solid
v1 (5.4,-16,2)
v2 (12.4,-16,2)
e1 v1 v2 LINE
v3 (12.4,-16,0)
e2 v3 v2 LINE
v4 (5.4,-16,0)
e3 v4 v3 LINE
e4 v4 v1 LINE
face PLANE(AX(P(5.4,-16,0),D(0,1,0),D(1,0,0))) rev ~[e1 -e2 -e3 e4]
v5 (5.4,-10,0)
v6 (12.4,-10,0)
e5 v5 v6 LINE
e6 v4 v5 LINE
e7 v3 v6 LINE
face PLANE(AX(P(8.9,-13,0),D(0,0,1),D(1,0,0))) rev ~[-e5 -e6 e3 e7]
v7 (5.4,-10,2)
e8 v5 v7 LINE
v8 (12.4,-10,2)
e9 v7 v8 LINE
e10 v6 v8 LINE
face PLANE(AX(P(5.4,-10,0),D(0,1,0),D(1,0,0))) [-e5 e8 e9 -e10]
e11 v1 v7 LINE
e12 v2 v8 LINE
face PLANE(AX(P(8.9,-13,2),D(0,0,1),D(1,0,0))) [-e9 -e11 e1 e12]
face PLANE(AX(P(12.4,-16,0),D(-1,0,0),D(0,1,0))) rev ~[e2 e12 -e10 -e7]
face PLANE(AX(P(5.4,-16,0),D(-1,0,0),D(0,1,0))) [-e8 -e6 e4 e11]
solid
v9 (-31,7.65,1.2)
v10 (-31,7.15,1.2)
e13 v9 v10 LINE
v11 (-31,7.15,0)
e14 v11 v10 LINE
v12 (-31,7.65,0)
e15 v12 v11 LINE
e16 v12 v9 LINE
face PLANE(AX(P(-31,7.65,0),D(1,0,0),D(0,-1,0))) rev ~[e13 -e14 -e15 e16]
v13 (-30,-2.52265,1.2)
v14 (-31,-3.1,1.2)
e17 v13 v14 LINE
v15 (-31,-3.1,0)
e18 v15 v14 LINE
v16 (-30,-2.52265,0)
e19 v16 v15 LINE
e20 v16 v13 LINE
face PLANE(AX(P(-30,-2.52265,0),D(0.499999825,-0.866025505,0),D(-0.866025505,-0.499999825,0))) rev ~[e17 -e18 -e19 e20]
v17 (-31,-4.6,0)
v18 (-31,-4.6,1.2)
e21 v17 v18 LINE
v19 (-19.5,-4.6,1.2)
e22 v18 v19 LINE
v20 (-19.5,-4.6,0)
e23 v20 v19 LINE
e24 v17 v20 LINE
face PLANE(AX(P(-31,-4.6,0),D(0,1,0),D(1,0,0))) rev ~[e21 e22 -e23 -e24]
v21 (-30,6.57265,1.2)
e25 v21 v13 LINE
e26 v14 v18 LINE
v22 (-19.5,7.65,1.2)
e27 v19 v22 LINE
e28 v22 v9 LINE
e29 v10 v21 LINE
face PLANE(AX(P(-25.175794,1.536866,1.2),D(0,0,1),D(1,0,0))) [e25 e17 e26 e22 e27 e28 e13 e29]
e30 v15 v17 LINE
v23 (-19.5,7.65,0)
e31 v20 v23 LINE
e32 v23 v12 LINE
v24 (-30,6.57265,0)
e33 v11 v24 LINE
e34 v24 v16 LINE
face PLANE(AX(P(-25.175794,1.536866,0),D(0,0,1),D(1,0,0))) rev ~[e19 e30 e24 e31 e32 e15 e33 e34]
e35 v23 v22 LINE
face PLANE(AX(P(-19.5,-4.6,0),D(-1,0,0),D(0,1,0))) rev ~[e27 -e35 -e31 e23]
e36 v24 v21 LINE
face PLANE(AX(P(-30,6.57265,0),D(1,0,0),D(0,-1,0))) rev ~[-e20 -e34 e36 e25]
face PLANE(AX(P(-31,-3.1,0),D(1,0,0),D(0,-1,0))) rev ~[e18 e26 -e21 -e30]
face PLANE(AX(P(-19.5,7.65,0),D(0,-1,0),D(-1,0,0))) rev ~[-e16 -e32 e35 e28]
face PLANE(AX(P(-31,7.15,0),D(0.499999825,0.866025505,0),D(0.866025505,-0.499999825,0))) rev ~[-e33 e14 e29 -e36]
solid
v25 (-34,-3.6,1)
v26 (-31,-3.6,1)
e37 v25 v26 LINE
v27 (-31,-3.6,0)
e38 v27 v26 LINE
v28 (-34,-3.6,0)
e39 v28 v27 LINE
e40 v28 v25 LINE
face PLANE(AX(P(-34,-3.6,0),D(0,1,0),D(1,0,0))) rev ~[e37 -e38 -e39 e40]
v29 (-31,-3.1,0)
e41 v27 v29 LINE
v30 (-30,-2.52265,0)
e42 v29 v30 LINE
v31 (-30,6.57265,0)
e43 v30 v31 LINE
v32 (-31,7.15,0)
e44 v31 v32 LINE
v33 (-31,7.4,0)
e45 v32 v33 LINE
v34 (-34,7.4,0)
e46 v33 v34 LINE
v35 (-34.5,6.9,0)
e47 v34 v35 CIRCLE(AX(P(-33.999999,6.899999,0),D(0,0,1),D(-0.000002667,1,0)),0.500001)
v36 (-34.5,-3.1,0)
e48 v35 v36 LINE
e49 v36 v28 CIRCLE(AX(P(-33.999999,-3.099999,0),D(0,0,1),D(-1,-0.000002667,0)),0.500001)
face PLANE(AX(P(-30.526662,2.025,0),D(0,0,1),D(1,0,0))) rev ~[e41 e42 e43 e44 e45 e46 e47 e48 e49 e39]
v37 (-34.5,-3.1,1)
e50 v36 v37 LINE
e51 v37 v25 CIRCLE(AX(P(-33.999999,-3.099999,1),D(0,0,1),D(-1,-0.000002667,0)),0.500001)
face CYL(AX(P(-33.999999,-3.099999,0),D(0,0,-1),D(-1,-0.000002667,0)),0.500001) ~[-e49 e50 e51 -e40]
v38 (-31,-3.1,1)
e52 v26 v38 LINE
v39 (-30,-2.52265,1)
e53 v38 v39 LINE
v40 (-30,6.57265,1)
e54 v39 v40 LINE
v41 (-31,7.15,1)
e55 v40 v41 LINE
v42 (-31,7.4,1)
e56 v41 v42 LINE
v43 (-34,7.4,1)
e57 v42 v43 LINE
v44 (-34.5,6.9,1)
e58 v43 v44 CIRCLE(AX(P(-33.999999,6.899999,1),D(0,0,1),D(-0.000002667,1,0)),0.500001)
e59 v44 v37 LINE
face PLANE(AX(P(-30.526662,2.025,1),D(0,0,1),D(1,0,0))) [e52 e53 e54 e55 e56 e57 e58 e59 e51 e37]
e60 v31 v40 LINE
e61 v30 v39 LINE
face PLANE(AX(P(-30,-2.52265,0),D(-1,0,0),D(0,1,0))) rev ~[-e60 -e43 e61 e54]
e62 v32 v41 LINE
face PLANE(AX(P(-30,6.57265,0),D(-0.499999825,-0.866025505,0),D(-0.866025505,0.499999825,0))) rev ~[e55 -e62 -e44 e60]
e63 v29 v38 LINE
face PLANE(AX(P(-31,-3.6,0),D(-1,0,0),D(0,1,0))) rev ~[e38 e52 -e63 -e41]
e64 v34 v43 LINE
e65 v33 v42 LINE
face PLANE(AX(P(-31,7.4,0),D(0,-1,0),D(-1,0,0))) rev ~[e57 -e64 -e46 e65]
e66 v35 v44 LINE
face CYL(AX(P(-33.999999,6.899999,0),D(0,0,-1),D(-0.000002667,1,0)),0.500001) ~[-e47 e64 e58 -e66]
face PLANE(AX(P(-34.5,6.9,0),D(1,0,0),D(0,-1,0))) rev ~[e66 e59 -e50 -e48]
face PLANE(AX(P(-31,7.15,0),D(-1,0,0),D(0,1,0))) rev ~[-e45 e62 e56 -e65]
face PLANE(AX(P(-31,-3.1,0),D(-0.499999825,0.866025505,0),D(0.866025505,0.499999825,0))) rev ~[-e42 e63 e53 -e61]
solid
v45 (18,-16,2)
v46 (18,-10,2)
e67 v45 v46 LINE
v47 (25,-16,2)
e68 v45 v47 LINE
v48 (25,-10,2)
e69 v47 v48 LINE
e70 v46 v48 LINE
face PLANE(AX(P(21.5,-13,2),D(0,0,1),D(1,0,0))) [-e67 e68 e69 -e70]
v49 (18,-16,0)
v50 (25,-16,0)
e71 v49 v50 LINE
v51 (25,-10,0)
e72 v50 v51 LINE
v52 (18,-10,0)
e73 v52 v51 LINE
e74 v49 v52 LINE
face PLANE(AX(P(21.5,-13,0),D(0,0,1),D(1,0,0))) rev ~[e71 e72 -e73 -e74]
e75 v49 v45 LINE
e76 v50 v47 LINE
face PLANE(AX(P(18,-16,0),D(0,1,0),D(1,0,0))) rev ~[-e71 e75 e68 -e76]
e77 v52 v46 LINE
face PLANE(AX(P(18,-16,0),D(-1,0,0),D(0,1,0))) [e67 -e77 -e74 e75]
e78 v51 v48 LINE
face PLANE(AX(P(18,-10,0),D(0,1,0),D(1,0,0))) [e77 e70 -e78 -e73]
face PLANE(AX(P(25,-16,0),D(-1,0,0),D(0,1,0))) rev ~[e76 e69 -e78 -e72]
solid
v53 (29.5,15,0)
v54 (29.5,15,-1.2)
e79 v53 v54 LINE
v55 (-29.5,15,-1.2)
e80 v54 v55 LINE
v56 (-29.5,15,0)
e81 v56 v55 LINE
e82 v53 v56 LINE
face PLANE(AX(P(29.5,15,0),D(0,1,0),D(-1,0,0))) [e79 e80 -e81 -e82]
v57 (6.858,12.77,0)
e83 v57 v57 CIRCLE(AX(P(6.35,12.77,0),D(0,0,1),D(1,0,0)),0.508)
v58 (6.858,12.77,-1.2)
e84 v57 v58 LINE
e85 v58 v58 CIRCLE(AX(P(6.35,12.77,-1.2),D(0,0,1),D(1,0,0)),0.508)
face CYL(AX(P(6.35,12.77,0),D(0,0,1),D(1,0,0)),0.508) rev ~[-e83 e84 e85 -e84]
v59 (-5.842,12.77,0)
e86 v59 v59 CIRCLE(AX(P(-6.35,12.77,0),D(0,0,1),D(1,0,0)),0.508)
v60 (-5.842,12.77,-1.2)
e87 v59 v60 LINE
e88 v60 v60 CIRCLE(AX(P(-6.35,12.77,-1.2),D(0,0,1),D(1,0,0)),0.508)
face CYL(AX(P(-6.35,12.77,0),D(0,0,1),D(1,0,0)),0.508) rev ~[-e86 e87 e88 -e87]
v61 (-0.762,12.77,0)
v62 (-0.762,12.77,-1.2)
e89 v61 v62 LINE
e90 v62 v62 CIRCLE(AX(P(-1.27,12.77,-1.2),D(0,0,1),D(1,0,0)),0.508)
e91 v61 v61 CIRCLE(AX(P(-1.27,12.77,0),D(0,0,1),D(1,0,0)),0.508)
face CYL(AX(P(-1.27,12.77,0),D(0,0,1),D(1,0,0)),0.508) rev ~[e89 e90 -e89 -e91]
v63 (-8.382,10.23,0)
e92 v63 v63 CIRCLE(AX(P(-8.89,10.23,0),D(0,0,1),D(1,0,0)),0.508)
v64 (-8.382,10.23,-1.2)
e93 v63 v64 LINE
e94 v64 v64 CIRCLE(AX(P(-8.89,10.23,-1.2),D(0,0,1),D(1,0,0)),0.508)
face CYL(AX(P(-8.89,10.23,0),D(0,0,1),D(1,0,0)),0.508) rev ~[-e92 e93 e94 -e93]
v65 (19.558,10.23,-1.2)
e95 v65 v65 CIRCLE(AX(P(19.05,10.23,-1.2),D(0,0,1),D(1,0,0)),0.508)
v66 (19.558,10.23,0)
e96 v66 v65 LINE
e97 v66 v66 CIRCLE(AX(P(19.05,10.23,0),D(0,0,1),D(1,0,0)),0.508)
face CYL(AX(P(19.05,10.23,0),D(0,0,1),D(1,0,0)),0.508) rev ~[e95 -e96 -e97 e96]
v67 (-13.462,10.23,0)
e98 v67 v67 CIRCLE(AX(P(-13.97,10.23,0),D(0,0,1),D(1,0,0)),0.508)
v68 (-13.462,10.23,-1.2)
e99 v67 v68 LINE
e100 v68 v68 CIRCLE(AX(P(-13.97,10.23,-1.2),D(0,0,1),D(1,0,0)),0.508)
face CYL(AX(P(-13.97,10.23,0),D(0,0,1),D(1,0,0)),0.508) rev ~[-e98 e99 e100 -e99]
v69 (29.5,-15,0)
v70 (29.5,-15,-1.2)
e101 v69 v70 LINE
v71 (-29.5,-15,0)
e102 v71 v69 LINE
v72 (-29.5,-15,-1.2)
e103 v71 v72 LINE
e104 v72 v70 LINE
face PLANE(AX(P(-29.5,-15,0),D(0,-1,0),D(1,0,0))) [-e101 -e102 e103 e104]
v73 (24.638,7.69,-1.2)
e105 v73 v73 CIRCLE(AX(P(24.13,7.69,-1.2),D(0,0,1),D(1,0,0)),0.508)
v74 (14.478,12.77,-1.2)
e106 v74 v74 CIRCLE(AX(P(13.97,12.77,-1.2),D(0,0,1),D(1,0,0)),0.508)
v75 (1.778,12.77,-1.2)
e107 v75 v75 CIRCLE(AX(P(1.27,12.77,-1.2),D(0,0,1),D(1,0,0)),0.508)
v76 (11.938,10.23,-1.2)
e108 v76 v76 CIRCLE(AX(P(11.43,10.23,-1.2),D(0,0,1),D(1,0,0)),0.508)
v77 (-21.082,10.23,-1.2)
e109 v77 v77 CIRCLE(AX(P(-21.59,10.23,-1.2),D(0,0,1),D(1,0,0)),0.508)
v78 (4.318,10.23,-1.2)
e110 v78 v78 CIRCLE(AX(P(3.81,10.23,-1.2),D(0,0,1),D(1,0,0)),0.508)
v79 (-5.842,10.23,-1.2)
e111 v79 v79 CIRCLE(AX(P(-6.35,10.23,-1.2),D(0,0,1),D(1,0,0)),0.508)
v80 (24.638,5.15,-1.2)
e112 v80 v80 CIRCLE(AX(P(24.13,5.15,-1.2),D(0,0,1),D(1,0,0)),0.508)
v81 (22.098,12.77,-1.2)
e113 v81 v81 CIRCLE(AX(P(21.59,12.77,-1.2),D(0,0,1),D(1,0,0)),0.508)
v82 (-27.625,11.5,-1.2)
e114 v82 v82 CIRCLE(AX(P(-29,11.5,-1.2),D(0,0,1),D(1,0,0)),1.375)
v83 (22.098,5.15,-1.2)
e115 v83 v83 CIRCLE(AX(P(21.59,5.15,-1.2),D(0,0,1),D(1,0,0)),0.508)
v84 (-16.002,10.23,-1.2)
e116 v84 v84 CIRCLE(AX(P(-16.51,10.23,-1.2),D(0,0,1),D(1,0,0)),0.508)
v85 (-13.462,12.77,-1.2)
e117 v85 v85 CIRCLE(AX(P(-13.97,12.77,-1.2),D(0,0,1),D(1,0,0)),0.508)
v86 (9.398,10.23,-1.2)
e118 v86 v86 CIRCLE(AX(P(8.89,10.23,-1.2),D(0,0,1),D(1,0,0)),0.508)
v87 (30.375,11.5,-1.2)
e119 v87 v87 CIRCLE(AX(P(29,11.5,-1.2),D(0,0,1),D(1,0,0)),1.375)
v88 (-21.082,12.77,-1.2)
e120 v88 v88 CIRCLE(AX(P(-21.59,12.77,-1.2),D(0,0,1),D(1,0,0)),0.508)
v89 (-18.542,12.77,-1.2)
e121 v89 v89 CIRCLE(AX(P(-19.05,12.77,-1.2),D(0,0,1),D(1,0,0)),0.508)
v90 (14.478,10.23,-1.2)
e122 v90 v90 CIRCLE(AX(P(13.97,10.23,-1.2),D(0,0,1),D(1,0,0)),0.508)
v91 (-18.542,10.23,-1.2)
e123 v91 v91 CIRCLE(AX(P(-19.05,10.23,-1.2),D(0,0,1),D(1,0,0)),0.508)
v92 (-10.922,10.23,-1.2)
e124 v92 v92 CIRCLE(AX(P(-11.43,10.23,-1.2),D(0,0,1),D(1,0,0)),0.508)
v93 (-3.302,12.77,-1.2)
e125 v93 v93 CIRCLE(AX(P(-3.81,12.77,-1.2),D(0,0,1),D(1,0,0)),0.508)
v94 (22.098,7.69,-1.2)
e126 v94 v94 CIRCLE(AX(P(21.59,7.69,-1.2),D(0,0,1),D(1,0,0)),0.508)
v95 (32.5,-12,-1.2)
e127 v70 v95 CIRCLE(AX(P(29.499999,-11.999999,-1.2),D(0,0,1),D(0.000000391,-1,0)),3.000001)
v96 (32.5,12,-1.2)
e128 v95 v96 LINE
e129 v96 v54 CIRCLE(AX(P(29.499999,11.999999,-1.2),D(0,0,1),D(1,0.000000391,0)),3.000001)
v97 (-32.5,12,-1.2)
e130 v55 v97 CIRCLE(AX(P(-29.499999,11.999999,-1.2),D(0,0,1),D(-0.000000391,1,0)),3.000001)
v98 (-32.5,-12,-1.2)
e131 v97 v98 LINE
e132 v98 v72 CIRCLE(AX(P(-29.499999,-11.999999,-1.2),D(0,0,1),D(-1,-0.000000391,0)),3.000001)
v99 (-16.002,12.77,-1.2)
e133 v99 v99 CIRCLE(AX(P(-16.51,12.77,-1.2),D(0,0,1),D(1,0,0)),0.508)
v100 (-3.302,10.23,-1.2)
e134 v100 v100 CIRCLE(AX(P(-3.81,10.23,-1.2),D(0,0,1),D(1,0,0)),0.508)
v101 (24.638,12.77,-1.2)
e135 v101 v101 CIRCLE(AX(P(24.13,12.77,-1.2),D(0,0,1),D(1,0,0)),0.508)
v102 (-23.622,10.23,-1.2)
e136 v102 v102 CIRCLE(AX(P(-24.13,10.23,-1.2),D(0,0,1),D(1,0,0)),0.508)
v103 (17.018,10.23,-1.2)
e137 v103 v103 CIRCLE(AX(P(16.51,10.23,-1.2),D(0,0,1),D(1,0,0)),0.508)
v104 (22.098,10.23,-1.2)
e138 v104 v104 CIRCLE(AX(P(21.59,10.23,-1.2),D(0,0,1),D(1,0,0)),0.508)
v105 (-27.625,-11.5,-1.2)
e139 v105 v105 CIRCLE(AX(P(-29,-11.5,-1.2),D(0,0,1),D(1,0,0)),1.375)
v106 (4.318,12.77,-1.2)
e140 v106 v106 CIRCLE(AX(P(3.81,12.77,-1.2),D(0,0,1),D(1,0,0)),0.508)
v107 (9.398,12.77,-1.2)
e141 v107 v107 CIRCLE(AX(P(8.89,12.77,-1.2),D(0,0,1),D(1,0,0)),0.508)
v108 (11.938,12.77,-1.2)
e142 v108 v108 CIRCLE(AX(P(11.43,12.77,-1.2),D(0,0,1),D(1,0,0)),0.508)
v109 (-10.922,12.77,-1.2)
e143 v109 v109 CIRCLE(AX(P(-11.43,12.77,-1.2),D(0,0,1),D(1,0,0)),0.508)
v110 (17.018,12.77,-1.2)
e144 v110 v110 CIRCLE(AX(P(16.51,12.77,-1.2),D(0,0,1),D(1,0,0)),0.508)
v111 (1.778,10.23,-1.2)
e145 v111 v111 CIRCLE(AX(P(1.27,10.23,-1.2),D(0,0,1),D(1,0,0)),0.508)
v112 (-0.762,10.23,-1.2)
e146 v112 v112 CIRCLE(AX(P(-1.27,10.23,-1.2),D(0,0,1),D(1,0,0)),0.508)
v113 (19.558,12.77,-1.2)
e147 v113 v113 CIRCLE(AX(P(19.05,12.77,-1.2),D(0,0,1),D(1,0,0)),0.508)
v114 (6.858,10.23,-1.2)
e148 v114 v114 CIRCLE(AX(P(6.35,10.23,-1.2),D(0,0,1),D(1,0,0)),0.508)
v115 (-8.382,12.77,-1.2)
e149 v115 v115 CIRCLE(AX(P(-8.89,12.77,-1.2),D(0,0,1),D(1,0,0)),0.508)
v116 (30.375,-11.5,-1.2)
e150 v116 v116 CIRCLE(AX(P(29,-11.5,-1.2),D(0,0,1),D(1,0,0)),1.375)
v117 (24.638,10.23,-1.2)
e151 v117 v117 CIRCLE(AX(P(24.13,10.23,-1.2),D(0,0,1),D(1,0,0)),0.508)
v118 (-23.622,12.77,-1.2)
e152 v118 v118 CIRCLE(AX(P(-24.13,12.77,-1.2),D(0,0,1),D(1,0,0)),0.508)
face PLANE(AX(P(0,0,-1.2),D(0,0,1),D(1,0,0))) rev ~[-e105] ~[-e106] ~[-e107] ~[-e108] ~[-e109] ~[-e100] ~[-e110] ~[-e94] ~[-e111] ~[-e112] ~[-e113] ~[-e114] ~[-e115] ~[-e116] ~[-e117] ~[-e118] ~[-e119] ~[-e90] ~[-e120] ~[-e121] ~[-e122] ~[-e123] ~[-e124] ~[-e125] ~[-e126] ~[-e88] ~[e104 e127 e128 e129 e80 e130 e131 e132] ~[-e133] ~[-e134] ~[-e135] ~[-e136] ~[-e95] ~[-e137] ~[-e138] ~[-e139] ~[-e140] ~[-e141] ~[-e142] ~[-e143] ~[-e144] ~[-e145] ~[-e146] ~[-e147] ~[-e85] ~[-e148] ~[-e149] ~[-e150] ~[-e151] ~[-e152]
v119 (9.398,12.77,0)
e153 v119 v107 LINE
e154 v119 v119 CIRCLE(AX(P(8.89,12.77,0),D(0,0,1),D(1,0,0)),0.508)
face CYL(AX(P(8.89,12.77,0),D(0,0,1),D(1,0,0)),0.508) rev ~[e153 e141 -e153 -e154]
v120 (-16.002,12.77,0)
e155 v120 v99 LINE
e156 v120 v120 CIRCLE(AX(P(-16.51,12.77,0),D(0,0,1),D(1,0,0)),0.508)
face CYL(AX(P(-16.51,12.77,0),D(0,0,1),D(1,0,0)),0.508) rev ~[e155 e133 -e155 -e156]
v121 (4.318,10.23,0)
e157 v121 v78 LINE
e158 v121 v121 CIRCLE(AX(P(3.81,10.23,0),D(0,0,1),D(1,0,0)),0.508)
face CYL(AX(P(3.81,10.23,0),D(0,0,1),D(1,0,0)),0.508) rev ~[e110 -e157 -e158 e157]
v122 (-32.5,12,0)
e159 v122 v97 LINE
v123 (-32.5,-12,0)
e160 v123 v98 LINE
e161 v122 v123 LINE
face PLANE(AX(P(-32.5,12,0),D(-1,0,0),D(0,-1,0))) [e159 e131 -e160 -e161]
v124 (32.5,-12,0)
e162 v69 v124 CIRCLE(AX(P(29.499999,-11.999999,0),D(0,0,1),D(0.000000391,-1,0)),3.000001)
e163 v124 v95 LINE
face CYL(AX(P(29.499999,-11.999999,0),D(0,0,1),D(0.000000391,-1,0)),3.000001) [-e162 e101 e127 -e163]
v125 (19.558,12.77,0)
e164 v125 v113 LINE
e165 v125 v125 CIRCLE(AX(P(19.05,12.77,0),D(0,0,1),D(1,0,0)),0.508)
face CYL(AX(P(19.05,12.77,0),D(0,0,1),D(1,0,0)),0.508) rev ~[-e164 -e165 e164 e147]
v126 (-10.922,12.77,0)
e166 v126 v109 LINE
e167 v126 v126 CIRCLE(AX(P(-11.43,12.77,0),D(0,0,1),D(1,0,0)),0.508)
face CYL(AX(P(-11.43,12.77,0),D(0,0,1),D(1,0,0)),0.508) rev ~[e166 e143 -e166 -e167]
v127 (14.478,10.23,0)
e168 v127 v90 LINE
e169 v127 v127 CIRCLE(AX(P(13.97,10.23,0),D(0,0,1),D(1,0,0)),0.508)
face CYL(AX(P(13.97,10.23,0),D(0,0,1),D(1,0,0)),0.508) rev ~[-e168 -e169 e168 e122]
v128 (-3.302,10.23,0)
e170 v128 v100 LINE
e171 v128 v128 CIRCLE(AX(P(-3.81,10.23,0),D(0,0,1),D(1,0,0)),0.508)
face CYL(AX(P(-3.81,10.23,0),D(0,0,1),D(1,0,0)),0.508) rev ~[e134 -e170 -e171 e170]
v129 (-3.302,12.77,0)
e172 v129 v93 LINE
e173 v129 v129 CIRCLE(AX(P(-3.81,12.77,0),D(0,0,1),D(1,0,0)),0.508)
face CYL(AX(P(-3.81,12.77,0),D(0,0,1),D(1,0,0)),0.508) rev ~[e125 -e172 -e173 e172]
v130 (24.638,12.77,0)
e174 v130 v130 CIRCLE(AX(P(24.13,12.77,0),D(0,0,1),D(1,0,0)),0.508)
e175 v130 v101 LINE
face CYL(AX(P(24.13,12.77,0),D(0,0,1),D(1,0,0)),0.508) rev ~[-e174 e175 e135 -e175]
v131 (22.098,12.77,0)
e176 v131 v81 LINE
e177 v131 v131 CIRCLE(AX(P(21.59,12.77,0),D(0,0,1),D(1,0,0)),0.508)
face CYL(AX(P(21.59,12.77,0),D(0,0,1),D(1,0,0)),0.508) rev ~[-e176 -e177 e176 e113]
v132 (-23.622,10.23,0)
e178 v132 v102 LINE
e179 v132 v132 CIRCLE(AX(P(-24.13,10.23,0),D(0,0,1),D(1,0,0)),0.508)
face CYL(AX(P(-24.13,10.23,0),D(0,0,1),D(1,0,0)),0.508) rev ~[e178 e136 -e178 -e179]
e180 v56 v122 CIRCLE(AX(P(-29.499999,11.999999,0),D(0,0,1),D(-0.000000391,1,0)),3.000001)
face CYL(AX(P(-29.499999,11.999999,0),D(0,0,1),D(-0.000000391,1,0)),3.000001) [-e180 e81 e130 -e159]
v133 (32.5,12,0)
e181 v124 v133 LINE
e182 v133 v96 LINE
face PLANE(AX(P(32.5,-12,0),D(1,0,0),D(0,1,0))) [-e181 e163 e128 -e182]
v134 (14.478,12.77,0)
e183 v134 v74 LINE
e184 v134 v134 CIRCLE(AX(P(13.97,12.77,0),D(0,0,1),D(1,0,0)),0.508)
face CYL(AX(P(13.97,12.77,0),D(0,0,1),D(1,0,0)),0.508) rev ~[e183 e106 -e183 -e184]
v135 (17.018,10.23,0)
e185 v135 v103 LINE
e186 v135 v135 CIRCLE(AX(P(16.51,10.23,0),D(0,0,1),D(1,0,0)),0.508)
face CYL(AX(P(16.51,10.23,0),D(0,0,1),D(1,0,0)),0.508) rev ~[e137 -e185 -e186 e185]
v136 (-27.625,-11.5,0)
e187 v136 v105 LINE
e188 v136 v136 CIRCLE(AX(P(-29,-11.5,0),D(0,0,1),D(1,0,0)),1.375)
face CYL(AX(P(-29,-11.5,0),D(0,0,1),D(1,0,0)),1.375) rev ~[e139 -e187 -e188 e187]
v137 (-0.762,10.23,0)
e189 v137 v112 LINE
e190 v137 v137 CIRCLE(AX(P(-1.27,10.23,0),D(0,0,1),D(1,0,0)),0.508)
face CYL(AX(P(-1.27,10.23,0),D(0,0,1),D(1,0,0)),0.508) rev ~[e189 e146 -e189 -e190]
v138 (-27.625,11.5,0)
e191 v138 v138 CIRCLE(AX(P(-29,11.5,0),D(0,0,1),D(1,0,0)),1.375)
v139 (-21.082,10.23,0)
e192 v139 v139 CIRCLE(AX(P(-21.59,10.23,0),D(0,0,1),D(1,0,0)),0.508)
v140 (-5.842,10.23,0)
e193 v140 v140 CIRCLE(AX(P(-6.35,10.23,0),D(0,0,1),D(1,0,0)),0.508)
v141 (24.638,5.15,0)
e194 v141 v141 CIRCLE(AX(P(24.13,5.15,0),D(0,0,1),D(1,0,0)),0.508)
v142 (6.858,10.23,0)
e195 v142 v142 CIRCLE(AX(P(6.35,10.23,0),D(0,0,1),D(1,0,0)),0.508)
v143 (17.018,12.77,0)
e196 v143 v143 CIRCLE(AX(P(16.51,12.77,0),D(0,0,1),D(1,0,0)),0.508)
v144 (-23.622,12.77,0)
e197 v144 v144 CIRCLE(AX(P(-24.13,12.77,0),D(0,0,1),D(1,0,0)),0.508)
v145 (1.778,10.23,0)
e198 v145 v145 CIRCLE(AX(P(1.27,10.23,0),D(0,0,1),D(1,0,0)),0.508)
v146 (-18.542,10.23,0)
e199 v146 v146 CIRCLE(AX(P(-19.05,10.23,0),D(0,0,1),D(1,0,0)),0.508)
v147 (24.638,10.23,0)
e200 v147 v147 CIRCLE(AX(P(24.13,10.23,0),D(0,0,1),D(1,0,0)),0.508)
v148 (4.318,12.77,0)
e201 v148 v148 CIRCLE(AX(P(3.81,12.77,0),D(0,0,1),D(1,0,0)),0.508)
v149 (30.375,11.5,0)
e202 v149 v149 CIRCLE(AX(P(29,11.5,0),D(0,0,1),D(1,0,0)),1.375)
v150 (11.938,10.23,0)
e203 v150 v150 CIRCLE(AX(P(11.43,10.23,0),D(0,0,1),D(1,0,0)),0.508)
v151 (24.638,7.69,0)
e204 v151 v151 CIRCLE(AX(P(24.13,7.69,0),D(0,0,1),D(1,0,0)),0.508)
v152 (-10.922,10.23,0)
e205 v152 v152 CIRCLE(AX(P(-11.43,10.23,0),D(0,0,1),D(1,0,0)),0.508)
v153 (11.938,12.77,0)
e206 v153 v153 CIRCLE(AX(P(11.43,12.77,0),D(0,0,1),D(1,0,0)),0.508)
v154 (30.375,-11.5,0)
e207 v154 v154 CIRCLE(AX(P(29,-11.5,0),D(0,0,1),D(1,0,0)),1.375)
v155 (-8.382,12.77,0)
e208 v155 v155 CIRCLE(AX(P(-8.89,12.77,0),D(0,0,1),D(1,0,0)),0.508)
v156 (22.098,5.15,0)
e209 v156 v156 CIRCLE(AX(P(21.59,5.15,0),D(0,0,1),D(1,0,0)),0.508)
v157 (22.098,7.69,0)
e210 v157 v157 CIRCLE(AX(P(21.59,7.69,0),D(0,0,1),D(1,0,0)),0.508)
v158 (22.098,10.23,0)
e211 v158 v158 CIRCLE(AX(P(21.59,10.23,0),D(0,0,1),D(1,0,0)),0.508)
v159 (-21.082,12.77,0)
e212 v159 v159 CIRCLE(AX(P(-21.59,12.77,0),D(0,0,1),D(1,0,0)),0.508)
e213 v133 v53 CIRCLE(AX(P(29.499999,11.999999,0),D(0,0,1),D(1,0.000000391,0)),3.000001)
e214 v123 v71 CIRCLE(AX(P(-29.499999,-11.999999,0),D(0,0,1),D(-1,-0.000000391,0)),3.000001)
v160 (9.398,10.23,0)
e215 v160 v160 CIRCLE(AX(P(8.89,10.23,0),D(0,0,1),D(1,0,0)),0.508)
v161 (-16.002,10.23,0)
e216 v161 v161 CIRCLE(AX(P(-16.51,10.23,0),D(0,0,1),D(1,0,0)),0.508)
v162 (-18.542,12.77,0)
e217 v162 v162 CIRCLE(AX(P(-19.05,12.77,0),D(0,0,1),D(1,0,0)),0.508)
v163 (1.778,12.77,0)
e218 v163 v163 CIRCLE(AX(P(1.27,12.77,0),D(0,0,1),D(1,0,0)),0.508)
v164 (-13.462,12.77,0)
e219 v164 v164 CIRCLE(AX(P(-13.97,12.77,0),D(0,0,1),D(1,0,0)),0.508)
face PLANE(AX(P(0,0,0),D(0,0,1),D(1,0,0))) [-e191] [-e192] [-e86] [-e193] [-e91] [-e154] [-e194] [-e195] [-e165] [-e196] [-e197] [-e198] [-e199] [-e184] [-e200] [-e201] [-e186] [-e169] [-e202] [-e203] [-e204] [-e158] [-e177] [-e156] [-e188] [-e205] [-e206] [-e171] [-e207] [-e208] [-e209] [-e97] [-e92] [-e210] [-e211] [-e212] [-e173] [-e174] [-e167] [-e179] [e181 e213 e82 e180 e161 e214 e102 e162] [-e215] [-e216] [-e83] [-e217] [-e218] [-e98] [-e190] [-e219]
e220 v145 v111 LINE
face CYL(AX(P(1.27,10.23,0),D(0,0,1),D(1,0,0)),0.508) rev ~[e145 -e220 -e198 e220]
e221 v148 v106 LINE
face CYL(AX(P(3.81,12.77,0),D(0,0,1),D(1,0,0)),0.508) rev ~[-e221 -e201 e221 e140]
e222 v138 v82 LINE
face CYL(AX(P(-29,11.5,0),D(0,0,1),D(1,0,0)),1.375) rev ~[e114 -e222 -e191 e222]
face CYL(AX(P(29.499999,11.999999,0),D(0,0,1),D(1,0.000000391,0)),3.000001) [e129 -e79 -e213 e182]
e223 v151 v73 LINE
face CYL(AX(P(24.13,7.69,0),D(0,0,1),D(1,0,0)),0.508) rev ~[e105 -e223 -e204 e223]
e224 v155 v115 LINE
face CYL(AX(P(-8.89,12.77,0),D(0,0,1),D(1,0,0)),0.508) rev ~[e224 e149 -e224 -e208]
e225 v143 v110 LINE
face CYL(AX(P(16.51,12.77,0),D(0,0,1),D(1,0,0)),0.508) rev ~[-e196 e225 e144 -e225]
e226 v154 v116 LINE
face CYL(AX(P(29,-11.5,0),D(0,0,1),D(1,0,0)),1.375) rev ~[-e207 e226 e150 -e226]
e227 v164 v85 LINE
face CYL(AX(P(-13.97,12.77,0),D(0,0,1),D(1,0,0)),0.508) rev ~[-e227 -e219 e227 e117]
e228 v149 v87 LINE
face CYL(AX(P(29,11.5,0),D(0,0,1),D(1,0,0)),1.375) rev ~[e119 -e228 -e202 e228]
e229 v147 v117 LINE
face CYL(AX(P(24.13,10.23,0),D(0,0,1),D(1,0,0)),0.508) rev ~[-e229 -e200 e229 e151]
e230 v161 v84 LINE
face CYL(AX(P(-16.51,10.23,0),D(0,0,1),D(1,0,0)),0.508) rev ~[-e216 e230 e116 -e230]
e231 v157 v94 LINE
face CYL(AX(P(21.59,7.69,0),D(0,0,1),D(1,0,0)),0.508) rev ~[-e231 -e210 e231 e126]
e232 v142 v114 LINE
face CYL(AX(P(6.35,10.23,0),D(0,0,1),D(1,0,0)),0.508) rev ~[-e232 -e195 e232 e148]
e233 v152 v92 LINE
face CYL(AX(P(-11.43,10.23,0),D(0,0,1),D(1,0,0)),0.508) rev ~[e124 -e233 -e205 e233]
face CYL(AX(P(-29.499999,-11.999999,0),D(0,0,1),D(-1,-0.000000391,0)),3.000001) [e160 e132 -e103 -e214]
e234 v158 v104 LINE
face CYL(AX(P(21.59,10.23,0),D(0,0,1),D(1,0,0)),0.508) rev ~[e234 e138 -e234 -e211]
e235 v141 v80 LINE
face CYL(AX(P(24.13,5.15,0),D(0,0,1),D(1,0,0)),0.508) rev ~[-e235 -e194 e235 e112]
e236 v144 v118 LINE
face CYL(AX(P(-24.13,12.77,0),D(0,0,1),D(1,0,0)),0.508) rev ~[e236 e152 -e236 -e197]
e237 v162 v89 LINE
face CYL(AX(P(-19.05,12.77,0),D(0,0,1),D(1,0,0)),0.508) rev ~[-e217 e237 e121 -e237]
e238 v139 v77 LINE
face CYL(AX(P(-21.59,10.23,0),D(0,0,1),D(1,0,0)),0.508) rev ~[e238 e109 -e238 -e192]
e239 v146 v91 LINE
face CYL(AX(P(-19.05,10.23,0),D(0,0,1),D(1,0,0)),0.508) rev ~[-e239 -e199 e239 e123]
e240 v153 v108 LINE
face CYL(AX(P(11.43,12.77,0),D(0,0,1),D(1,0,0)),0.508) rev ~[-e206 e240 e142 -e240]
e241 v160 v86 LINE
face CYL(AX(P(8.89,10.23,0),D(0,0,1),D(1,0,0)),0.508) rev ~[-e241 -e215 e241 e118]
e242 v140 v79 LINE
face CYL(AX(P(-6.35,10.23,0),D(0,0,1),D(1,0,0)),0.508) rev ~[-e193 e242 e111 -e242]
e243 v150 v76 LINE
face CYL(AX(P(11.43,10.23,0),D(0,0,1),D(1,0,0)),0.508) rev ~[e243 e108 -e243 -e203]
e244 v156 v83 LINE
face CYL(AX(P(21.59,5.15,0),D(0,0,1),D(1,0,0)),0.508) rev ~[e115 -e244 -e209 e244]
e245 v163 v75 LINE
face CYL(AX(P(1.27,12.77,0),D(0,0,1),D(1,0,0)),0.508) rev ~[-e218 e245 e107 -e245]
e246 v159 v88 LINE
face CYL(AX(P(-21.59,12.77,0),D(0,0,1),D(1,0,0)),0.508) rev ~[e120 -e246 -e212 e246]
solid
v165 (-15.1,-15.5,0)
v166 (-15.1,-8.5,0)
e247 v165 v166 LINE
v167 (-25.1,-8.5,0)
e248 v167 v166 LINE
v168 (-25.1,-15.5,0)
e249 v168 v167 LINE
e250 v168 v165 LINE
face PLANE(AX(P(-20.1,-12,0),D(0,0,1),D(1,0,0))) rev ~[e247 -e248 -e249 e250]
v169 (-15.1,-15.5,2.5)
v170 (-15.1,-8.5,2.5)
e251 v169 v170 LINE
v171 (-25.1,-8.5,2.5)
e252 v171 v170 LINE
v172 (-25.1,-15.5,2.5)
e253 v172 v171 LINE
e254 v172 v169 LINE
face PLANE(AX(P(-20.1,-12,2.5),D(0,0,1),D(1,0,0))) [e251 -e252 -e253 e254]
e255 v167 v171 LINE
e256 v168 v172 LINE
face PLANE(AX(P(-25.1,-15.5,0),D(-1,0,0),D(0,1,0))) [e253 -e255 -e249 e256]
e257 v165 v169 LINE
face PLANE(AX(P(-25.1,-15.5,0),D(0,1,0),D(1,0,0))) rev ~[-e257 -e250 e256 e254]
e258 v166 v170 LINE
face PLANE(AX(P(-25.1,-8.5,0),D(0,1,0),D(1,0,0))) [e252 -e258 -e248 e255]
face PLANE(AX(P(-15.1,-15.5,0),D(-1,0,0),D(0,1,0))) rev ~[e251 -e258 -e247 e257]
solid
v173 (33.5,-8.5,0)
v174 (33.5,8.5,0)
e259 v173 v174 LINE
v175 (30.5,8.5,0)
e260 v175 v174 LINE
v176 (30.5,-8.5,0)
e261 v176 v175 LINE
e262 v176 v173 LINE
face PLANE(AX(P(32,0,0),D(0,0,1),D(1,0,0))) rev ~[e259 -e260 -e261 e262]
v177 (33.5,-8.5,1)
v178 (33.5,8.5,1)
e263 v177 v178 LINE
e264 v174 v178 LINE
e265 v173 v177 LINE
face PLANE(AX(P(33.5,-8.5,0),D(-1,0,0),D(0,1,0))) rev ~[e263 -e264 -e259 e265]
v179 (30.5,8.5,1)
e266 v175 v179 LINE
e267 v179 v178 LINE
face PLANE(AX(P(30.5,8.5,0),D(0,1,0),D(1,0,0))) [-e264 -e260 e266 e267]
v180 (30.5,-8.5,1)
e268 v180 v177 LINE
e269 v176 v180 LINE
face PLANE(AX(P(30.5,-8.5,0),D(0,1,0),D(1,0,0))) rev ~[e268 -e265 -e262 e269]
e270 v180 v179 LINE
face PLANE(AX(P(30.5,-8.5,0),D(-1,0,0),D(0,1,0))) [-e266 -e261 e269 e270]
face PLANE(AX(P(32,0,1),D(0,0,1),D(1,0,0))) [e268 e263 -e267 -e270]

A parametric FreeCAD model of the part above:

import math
import FreeCAD as App
import Part
import Sketcher
Q = App.Units.Quantity


def add_polygon(sketch, points):
    """Adds a closed chain of lines whose ends are joined by coincident constraints."""
    first, n = sketch.GeometryCount, len(points)
    for a, b in zip(points, points[1:] + points[:1]):
        sketch.addGeometry(Part.LineSegment(App.Vector(*a, 0), App.Vector(*b, 0)), False)
    for i in range(n):
        sketch.addConstraint(Sketcher.Constraint("Coincident", first + i, 2, first + (i + 1) % n, 1))

doc = App.newDocument("Part")
body = doc.addObject("PartDesign::Body", "Body")

sketch1 = body.newObject("Sketcher::SketchObject", "Sketch")
sketch1.AttachmentSupport = (doc.getObject("XY_Plane"), [""])
sketch1.MapMode = "FlatFace"
sketch1.addGeometry([
    Part.ArcOfCircle(Part.Circle(App.Vector(29.499999, 11.999999, 0), App.Vector(0, 0, 1), 3.000001), math.radians(0.000022), math.radians(89.999978)),
    Part.LineSegment(App.Vector(29.5, 15, 0), App.Vector(-29.5, 15, 0)),
    Part.ArcOfCircle(Part.Circle(App.Vector(-29.499999, 11.999999, 0), App.Vector(0, 0, 1), 3.000001), math.radians(90.000022), math.radians(179.999978)),
    Part.LineSegment(App.Vector(-32.5, 12, 0), App.Vector(-32.5, -12, 0)),
    Part.ArcOfCircle(Part.Circle(App.Vector(-29.499999, -11.999999, 0), App.Vector(0, 0, 1), 3.000001), math.radians(-179.999978), math.radians(-90.000022)),
    Part.LineSegment(App.Vector(-29.5, -15, 0), App.Vector(29.5, -15, 0)),
    Part.ArcOfCircle(Part.Circle(App.Vector(29.499999, -11.999999, 0), App.Vector(0, 0, 1), 3.000001), math.radians(-89.999978), math.radians(-0.000022)),
    Part.LineSegment(App.Vector(32.5, -12, 0), App.Vector(32.5, 12, 0)),
    Part.Circle(App.Vector(-29, -11.5, 0), App.Vector(0, 0, 1), 1.375),
    Part.Circle(App.Vector(29, -11.5, 0), App.Vector(0, 0, 1), 1.375),
    Part.Circle(App.Vector(-29, 11.5, 0), App.Vector(0, 0, 1), 1.375),
    Part.Circle(App.Vector(-24.13, 10.23, 0), App.Vector(0, 0, 1), 0.508),
    Part.Circle(App.Vector(-24.13, 12.77, 0), App.Vector(0, 0, 1), 0.508),
    Part.Circle(App.Vector(-21.59, 10.23, 0), App.Vector(0, 0, 1), 0.508),
    Part.Circle(App.Vector(-19.05, 10.23, 0), App.Vector(0, 0, 1), 0.508),
    Part.Circle(App.Vector(-16.51, 10.23, 0), App.Vector(0, 0, 1), 0.508),
    Part.Circle(App.Vector(-21.59, 12.77, 0), App.Vector(0, 0, 1), 0.508),
    Part.Circle(App.Vector(-19.05, 12.77, 0), App.Vector(0, 0, 1), 0.508),
    Part.Circle(App.Vector(-16.51, 12.77, 0), App.Vector(0, 0, 1), 0.508),
    Part.Circle(App.Vector(-13.97, 10.23, 0), App.Vector(0, 0, 1), 0.508),
    Part.Circle(App.Vector(-11.43, 10.23, 0), App.Vector(0, 0, 1), 0.508),
    Part.Circle(App.Vector(-8.89, 10.23, 0), App.Vector(0, 0, 1), 0.508),
    Part.Circle(App.Vector(-13.97, 12.77, 0), App.Vector(0, 0, 1), 0.508),
    Part.Circle(App.Vector(-11.43, 12.77, 0), App.Vector(0, 0, 1), 0.508),
    Part.Circle(App.Vector(-8.89, 12.77, 0), App.Vector(0, 0, 1), 0.508),
    Part.Circle(App.Vector(-6.35, 10.23, 0), App.Vector(0, 0, 1), 0.508),
    Part.Circle(App.Vector(-3.81, 10.23, 0), App.Vector(0, 0, 1), 0.508),
    Part.Circle(App.Vector(-1.27, 10.23, 0), App.Vector(0, 0, 1), 0.508),
    Part.Circle(App.Vector(-6.35, 12.77, 0), App.Vector(0, 0, 1), 0.508),
    Part.Circle(App.Vector(-3.81, 12.77, 0), App.Vector(0, 0, 1), 0.508),
    Part.Circle(App.Vector(-1.27, 12.77, 0), App.Vector(0, 0, 1), 0.508),
    Part.Circle(App.Vector(21.59, 5.15, 0), App.Vector(0, 0, 1), 0.508),
    Part.Circle(App.Vector(24.13, 5.15, 0), App.Vector(0, 0, 1), 0.508),
    Part.Circle(App.Vector(1.27, 10.23, 0), App.Vector(0, 0, 1), 0.508),
    Part.Circle(App.Vector(3.81, 10.23, 0), App.Vector(0, 0, 1), 0.508),
    Part.Circle(App.Vector(6.35, 10.23, 0), App.Vector(0, 0, 1), 0.508),
    Part.Circle(App.Vector(1.27, 12.77, 0), App.Vector(0, 0, 1), 0.508),
    Part.Circle(App.Vector(3.81, 12.77, 0), App.Vector(0, 0, 1), 0.508),
    Part.Circle(App.Vector(6.35, 12.77, 0), App.Vector(0, 0, 1), 0.508),
    Part.Circle(App.Vector(8.89, 10.23, 0), App.Vector(0, 0, 1), 0.508),
    Part.Circle(App.Vector(11.43, 10.23, 0), App.Vector(0, 0, 1), 0.508),
    Part.Circle(App.Vector(13.97, 10.23, 0), App.Vector(0, 0, 1), 0.508),
    Part.Circle(App.Vector(8.89, 12.77, 0), App.Vector(0, 0, 1), 0.508),
    Part.Circle(App.Vector(11.43, 12.77, 0), App.Vector(0, 0, 1), 0.508),
    Part.Circle(App.Vector(13.97, 12.77, 0), App.Vector(0, 0, 1), 0.508),
    Part.Circle(App.Vector(21.59, 7.69, 0), App.Vector(0, 0, 1), 0.508),
    Part.Circle(App.Vector(24.13, 7.69, 0), App.Vector(0, 0, 1), 0.508),
    Part.Circle(App.Vector(16.51, 10.23, 0), App.Vector(0, 0, 1), 0.508),
    Part.Circle(App.Vector(19.05, 10.23, 0), App.Vector(0, 0, 1), 0.508),
    Part.Circle(App.Vector(21.59, 10.23, 0), App.Vector(0, 0, 1), 0.508),
    Part.Circle(App.Vector(16.51, 12.77, 0), App.Vector(0, 0, 1), 0.508),
    Part.Circle(App.Vector(19.05, 12.77, 0), App.Vector(0, 0, 1), 0.508),
    Part.Circle(App.Vector(21.59, 12.77, 0), App.Vector(0, 0, 1), 0.508),
    Part.Circle(App.Vector(24.13, 10.23, 0), App.Vector(0, 0, 1), 0.508),
    Part.Circle(App.Vector(29, 11.5, 0), App.Vector(0, 0, 1), 1.375),
    Part.Circle(App.Vector(24.13, 12.77, 0), App.Vector(0, 0, 1), 0.508),
], False)
sketch1.addConstraint([
    Sketcher.Constraint("Tangent", 0, 2, 1, 1),
    Sketcher.Constraint("Tangent", 1, 2, 2, 1),
    Sketcher.Constraint("Tangent", 2, 2, 3, 1),
    Sketcher.Constraint("Tangent", 3, 2, 4, 1),
    Sketcher.Constraint("Tangent", 4, 2, 5, 1),
    Sketcher.Constraint("Tangent", 5, 2, 6, 1),
    Sketcher.Constraint("Tangent", 6, 2, 7, 1),
    Sketcher.Constraint("Tangent", 7, 2, 0, 1),
    Sketcher.Constraint("Horizontal", 1),
    Sketcher.Constraint("Vertical", 3),
    Sketcher.Constraint("Horizontal", 5),
    Sketcher.Constraint("Vertical", 7),
    Sketcher.Constraint("Equal", 0, 2),
    Sketcher.Constraint("Equal", 2, 4),
    Sketcher.Constraint("Equal", 4, 6),
    Sketcher.Constraint("Equal", 8, 9),
    Sketcher.Constraint("Equal", 9, 10),
    Sketcher.Constraint("Equal", 11, 12),
    Sketcher.Constraint("Equal", 12, 13),
    Sketcher.Constraint("Equal", 13, 14),
    Sketcher.Constraint("Equal", 14, 15),
    Sketcher.Constraint("Equal", 15, 16),
    Sketcher.Constraint("Equal", 16, 17),
    Sketcher.Constraint("Equal", 17, 18),
    Sketcher.Constraint("Equal", 18, 19),
    Sketcher.Constraint("Equal", 19, 20),
    Sketcher.Constraint("Equal", 20, 21),
    Sketcher.Constraint("Equal", 21, 22),
    Sketcher.Constraint("Equal", 22, 23),
    Sketcher.Constraint("Equal", 23, 24),
    Sketcher.Constraint("Equal", 24, 25),
    Sketcher.Constraint("Equal", 25, 26),
    Sketcher.Constraint("Equal", 26, 27),
    Sketcher.Constraint("Equal", 27, 28),
    Sketcher.Constraint("Equal", 28, 29),
    Sketcher.Constraint("Equal", 29, 30),
    Sketcher.Constraint("Equal", 30, 31),
    Sketcher.Constraint("Equal", 31, 32),
    Sketcher.Constraint("Equal", 32, 33),
    Sketcher.Constraint("Equal", 33, 34),
    Sketcher.Constraint("Equal", 34, 35),
    Sketcher.Constraint("Equal", 35, 36),
    Sketcher.Constraint("Equal", 36, 37),
    Sketcher.Constraint("Equal", 37, 38),
    Sketcher.Constraint("Equal", 38, 39),
    Sketcher.Constraint("Equal", 39, 40),
    Sketcher.Constraint("Equal", 40, 41),
    Sketcher.Constraint("Equal", 41, 42),
    Sketcher.Constraint("Equal", 42, 43),
    Sketcher.Constraint("Equal", 43, 44),
    Sketcher.Constraint("Equal", 44, 45),
    Sketcher.Constraint("Equal", 45, 46),
    Sketcher.Constraint("Equal", 46, 47),
    Sketcher.Constraint("Equal", 47, 48),
    Sketcher.Constraint("Equal", 48, 49),
    Sketcher.Constraint("Equal", 49, 50),
    Sketcher.Constraint("Equal", 50, 51),
    Sketcher.Constraint("Equal", 51, 52),
    Sketcher.Constraint("Equal", 52, 53),
    Sketcher.Constraint("Equal", 10, 54),
    Sketcher.Constraint("Equal", 53, 55),
    Sketcher.Constraint("Symmetric", 0, 3, 4, 3, -1, 1),
    Sketcher.Constraint("Symmetric", 9, 3, 10, 3, -1, 1),
    Sketcher.Constraint("Symmetric", 8, 3, 54, 3, -1, 1),
    Sketcher.Constraint("Symmetric", 8, 3, 9, 3, -2),
    Sketcher.Constraint("Symmetric", 27, 3, 33, 3, -2),
    Sketcher.Constraint("Symmetric", 26, 3, 34, 3, -2),
    Sketcher.Constraint("Symmetric", 25, 3, 35, 3, -2),
    Sketcher.Constraint("Symmetric", 30, 3, 36, 3, -2),
    Sketcher.Constraint("Symmetric", 29, 3, 37, 3, -2),
    Sketcher.Constraint("Symmetric", 28, 3, 38, 3, -2),
    Sketcher.Constraint("Symmetric", 21, 3, 39, 3, -2),
    Sketcher.Constraint("Symmetric", 20, 3, 40, 3, -2),
    Sketcher.Constraint("Symmetric", 19, 3, 41, 3, -2),
    Sketcher.Constraint("Symmetric", 24, 3, 42, 3, -2),
    Sketcher.Constraint("Symmetric", 23, 3, 43, 3, -2),
    Sketcher.Constraint("Symmetric", 22, 3, 44, 3, -2),
    Sketcher.Constraint("Symmetric", 15, 3, 47, 3, -2),
    Sketcher.Constraint("Symmetric", 14, 3, 48, 3, -2),
    Sketcher.Constraint("Symmetric", 13, 3, 49, 3, -2),
    Sketcher.Constraint("Symmetric", 18, 3, 50, 3, -2),
    Sketcher.Constraint("Symmetric", 17, 3, 51, 3, -2),
    Sketcher.Constraint("Symmetric", 16, 3, 52, 3, -2),
    Sketcher.Constraint("Symmetric", 11, 3, 53, 3, -2),
    Sketcher.Constraint("Symmetric", 12, 3, 55, 3, -2),
    Sketcher.Constraint("Horizontal", 11, 3, 13, 3),
    Sketcher.Constraint("Horizontal", 13, 3, 14, 3),
    Sketcher.Constraint("Horizontal", 14, 3, 15, 3),
    Sketcher.Constraint("Horizontal", 12, 3, 16, 3),
    Sketcher.Constraint("Horizontal", 16, 3, 17, 3),
    Sketcher.Constraint("Horizontal", 17, 3, 18, 3),
    Sketcher.Constraint("Horizontal", 15, 3, 19, 3),
    Sketcher.Constraint("Horizontal", 19, 3, 20, 3),
    Sketcher.Constraint("Horizontal", 20, 3, 21, 3),
    Sketcher.Constraint("Horizontal", 18, 3, 22, 3),
    Sketcher.Constraint("Horizontal", 22, 3, 23, 3),
    Sketcher.Constraint("Horizontal", 23, 3, 24, 3),
    Sketcher.Constraint("Horizontal", 21, 3, 25, 3),
    Sketcher.Constraint("Horizontal", 25, 3, 26, 3),
    Sketcher.Constraint("Horizontal", 26, 3, 27, 3),
    Sketcher.Constraint("Horizontal", 24, 3, 28, 3),
    Sketcher.Constraint("Horizontal", 28, 3, 29, 3),
    Sketcher.Constraint("Horizontal", 29, 3, 30, 3),
    Sketcher.Constraint("Horizontal", 31, 3, 32, 3),
    Sketcher.Constraint("Horizontal", 45, 3, 46, 3),
    Sketcher.Constraint("Vertical", 11, 3, 12, 3),
    Sketcher.Constraint("Vertical", 13, 3, 16, 3),
    Sketcher.Constraint("Vertical", 14, 3, 17, 3),
    Sketcher.Constraint("Vertical", 15, 3, 18, 3),
    Sketcher.Constraint("Vertical", 19, 3, 22, 3),
    Sketcher.Constraint("Vertical", 20, 3, 23, 3),
    Sketcher.Constraint("Vertical", 21, 3, 24, 3),
    Sketcher.Constraint("Vertical", 25, 3, 28, 3),
    Sketcher.Constraint("Vertical", 26, 3, 29, 3),
    Sketcher.Constraint("Vertical", 27, 3, 30, 3),
    Sketcher.Constraint("Vertical", 31, 3, 45, 3),
    Sketcher.Constraint("Vertical", 32, 3, 46, 3),
    Sketcher.Constraint("Vertical", 45, 3, 49, 3),
    Sketcher.Constraint("Vertical", 46, 3, 53, 3),
    Sketcher.Constraint("Radius", 0, Q("3.000001 mm")),
    Sketcher.Constraint("Diameter", 8, Q("2.75 mm")),
    Sketcher.Constraint("DistanceX", 1, 2, 1, 1, Q("59 mm")),
    Sketcher.Constraint("DistanceY", 3, 2, 3, 1, Q("24 mm")),
    Sketcher.Constraint("Diameter", 11, Q("1.016 mm")),
    Sketcher.Constraint("DistanceX", 8, 3, -1, 1, Q("29 mm")),
    Sketcher.Constraint("DistanceY", 8, 3, 10, 3, Q("23 mm")),
    Sketcher.Constraint("DistanceX", 27, 3, 32, 3, Q("25.4 mm")),
    Sketcher.Constraint("DistanceX", 11, 3, -1, 1, Q("24.13 mm")),
    Sketcher.Constraint("DistanceY", -1, 1, 11, 3, Q("10.23 mm")),
    Sketcher.Constraint("DistanceY", -1, 1, 12, 3, Q("12.77 mm")),
    Sketcher.Constraint("DistanceX", 13, 3, -1, 1, Q("21.59 mm")),
    Sketcher.Constraint("DistanceX", 14, 3, -1, 1, Q("19.05 mm")),
    Sketcher.Constraint("DistanceX", 15, 3, -1, 1, Q("16.51 mm")),
    Sketcher.Constraint("DistanceX", 19, 3, -1, 1, Q("13.97 mm")),
    Sketcher.Constraint("DistanceX", 20, 3, -1, 1, Q("11.43 mm")),
    Sketcher.Constraint("DistanceX", 21, 3, -1, 1, Q("8.89 mm")),
    Sketcher.Constraint("DistanceX", 25, 3, -1, 1, Q("6.35 mm")),
    Sketcher.Constraint("DistanceX", 26, 3, -1, 1, Q("3.81 mm")),
    Sketcher.Constraint("DistanceY", -1, 1, 31, 3, Q("5.15 mm")),
    Sketcher.Constraint("DistanceY", -1, 1, 45, 3, Q("7.69 mm")),
])
pad1 = body.newObject("PartDesign::Pad", "Pad")
pad1.Profile = sketch1
pad1.Length = 1.2
pad1.Reversed = True
body2 = doc.addObject("PartDesign::Body", "Body001")

sketch2 = body2.newObject("Sketcher::SketchObject", "Sketch001")
sketch2.AttachmentSupport = (doc.getObject("XY_Plane001"), [""])
sketch2.MapMode = "FlatFace"
add_polygon(sketch2, [(30.5, 8.5), (30.5, -8.5), (33.5, -8.5), (33.5, 8.5)])
sketch2.addConstraint([
    Sketcher.Constraint("Vertical", 0),
    Sketcher.Constraint("Horizontal", 1),
    Sketcher.Constraint("Vertical", 2),
    Sketcher.Constraint("Horizontal", 3),
    Sketcher.Constraint("DistanceX", 1, 1, 1, 2, Q("3 mm")),
    Sketcher.Constraint("DistanceY", 0, 2, 0, 1, Q("17 mm")),
    Sketcher.Constraint("DistanceX", -1, 1, 0, 2, Q("30.5 mm")),
    Sketcher.Constraint("DistanceY", 0, 2, -1, 1, Q("8.5 mm")),
])
pad2 = body2.newObject("PartDesign::Pad", "Pad001")
pad2.Profile = sketch2
pad2.Length = 1
body3 = doc.addObject("PartDesign::Body", "Body002")
body3.AllowCompound = True

sketch3 = body3.newObject("Sketcher::SketchObject", "Sketch002")
sketch3.AttachmentSupport = (doc.getObject("XY_Plane002"), [""])
sketch3.MapMode = "FlatFace"
add_polygon(sketch3, [(18, -10), (18, -16), (25, -16), (25, -10)])
add_polygon(sketch3, [(5.4, -10), (5.4, -16), (12.4, -16), (12.4, -10)])
sketch3.addConstraint([
    Sketcher.Constraint("Vertical", 0),
    Sketcher.Constraint("Horizontal", 1),
    Sketcher.Constraint("Vertical", 2),
    Sketcher.Constraint("Horizontal", 3),
    Sketcher.Constraint("Vertical", 4),
    Sketcher.Constraint("Horizontal", 5),
    Sketcher.Constraint("Vertical", 6),
    Sketcher.Constraint("Horizontal", 7),
    Sketcher.Constraint("Horizontal", 1, 2, 4, 2),
    Sketcher.Constraint("Horizontal", 3, 2, 6, 2),
    Sketcher.Constraint("Equal", 3, 5),
    Sketcher.Constraint("DistanceX", 1, 1, 1, 2, Q("7 mm")),
    Sketcher.Constraint("DistanceY", 0, 2, 0, 1, Q("6 mm")),
    Sketcher.Constraint("DistanceX", -1, 1, 0, 2, Q("18 mm")),
    Sketcher.Constraint("DistanceY", 0, 2, -1, 1, Q("16 mm")),
    Sketcher.Constraint("DistanceX", -1, 1, 4, 2, Q("5.4 mm")),
])
pad3 = body3.newObject("PartDesign::Pad", "Pad002")
pad3.Profile = sketch3
pad3.Length = 2
body4 = doc.addObject("PartDesign::Body", "Body003")

sketch4 = body4.newObject("Sketcher::SketchObject", "Sketch003")
sketch4.AttachmentSupport = (doc.getObject("XY_Plane003"), [""])
sketch4.MapMode = "FlatFace"
add_polygon(sketch4, [(-25.1, -8.5), (-25.1, -15.5), (-15.1, -15.5), (-15.1, -8.5)])
sketch4.addConstraint([
    Sketcher.Constraint("Vertical", 0),
    Sketcher.Constraint("Horizontal", 1),
    Sketcher.Constraint("Vertical", 2),
    Sketcher.Constraint("Horizontal", 3),
    Sketcher.Constraint("DistanceX", 1, 1, 1, 2, Q("10 mm")),
    Sketcher.Constraint("DistanceY", 0, 2, 0, 1, Q("7 mm")),
    Sketcher.Constraint("DistanceX", 0, 2, -1, 1, Q("25.1 mm")),
    Sketcher.Constraint("DistanceY", 0, 2, -1, 1, Q("15.5 mm")),
])
pad4 = body4.newObject("PartDesign::Pad", "Pad003")
pad4.Profile = sketch4
pad4.Length = 2.5
body5 = doc.addObject("PartDesign::Body", "Body004")

sketch5 = body5.newObject("Sketcher::SketchObject", "Sketch004")
sketch5.AttachmentSupport = (doc.getObject("XY_Plane004"), [""])
sketch5.MapMode = "FlatFace"
add_polygon(sketch5, [(-19.5, -4.6), (-19.5, 7.65), (-31, 7.65), (-31, 7.15), (-30, 6.57265), (-30, -2.52265), (-31, -3.1), (-31, -4.6)])
sketch5.addConstraint([
    Sketcher.Constraint("Vertical", 0),
    Sketcher.Constraint("Horizontal", 1),
    Sketcher.Constraint("Vertical", 2),
    Sketcher.Constraint("Vertical", 4),
    Sketcher.Constraint("Vertical", 6),
    Sketcher.Constraint("Horizontal", 7),
    Sketcher.Constraint("Vertical", 2, 2, 5, 2),
    Sketcher.Constraint("Equal", 3, 5),
    Sketcher.Constraint("Angle", 3, Q("-29.999988 deg")),
    Sketcher.Constraint("DistanceX", 1, 2, 1, 1, Q("11.5 mm")),
    Sketcher.Constraint("DistanceY", 2, 2, 2, 1, Q("0.5 mm")),
    Sketcher.Constraint("DistanceY", 6, 2, 6, 1, Q("1.5 mm")),
    Sketcher.Constraint("DistanceX", 1, 2, -1, 1, Q("31 mm")),
    Sketcher.Constraint("DistanceX", 3, 2, -1, 1, Q("30 mm")),
    Sketcher.Constraint("DistanceY", 0, 1, 0, 2, Q("12.25 mm")),
    Sketcher.Constraint("DistanceY", 5, 2, -1, 1, Q("3.1 mm")),
])
pad5 = body5.newObject("PartDesign::Pad", "Pad004")
pad5.Profile = sketch5
pad5.Length = 1.2
body6 = doc.addObject("PartDesign::Body", "Body005")

sketch6 = body6.newObject("Sketcher::SketchObject", "Sketch005")
sketch6.AttachmentSupport = (doc.getObject("XY_Plane005"), [""])
sketch6.MapMode = "FlatFace"
sketch6.addGeometry([
    Part.LineSegment(App.Vector(-30, 6.57265, 0), App.Vector(-31, 7.15, 0)),
    Part.LineSegment(App.Vector(-31, 7.15, 0), App.Vector(-31, 7.4, 0)),
    Part.LineSegment(App.Vector(-31, 7.4, 0), App.Vector(-34, 7.4, 0)),
    Part.ArcOfCircle(Part.Circle(App.Vector(-33.999999, 6.899999, 0), App.Vector(0, 0, 1), 0.500001), math.radians(90.000153), math.radians(179.999847)),
    Part.LineSegment(App.Vector(-34.5, 6.9, 0), App.Vector(-34.5, -3.1, 0)),
    Part.ArcOfCircle(Part.Circle(App.Vector(-33.999999, -3.099999, 0), App.Vector(0, 0, 1), 0.500001), math.radians(-179.999847), math.radians(-90.000153)),
    Part.LineSegment(App.Vector(-34, -3.6, 0), App.Vector(-31, -3.6, 0)),
    Part.LineSegment(App.Vector(-31, -3.6, 0), App.Vector(-31, -3.1, 0)),
    Part.LineSegment(App.Vector(-31, -3.1, 0), App.Vector(-30, -2.52265, 0)),
    Part.LineSegment(App.Vector(-30, -2.52265, 0), App.Vector(-30, 6.57265, 0)),
], False)
sketch6.addConstraint([
    Sketcher.Constraint("Coincident", 0, 2, 1, 1),
    Sketcher.Constraint("Coincident", 1, 2, 2, 1),
    Sketcher.Constraint("Coincident", 2, 2, 3, 1),
    Sketcher.Constraint("Coincident", 3, 2, 4, 1),
    Sketcher.Constraint("Coincident", 4, 2, 5, 1),
    Sketcher.Constraint("Coincident", 5, 2, 6, 1),
    Sketcher.Constraint("Coincident", 6, 2, 7, 1),
    Sketcher.Constraint("Coincident", 7, 2, 8, 1),
    Sketcher.Constraint("Coincident", 8, 2, 9, 1),
    Sketcher.Constraint("Coincident", 9, 2, 0, 1),
    Sketcher.Constraint("Vertical", 1),
    Sketcher.Constraint("Horizontal", 2),
    Sketcher.Constraint("Vertical", 4),
    Sketcher.Constraint("Horizontal", 6),
    Sketcher.Constraint("Vertical", 7),
    Sketcher.Constraint("Vertical", 9),
    Sketcher.Constraint("Equal", 3, 5),
    Sketcher.Constraint("Horizontal", 5, 3, 4, 2),
    Sketcher.Constraint("Horizontal", 4, 2, 7, 2),
    Sketcher.Constraint("Vertical", 5, 3, 2, 2),
    Sketcher.Constraint("Vertical", 2, 2, 5, 2),
    Sketcher.Constraint("Vertical", 1, 2, 6, 2),
    Sketcher.Constraint("Equal", 0, 8),
    Sketcher.Constraint("Radius", 3, Q("0.500001 mm")),
    Sketcher.Constraint("DistanceX", 2, 2, 2, 1, Q("3 mm")),
    Sketcher.Constraint("DistanceY", 4, 2, 4, 1, Q("10 mm")),
    Sketcher.Constraint("Angle", 0, Q("150.000012 deg")),
    Sketcher.Constraint("DistanceX", 3, 3, -1, 1, Q("33.999999 mm")),
    Sketcher.Constraint("DistanceX", 8, 2, -1, 1, Q("30 mm")),
    Sketcher.Constraint("DistanceY", 4, 2, 3, 3, Q("9.999999 mm")),
    Sketcher.Constraint("DistanceY", 1, 1, 1, 2, Q("0.25 mm")),
    Sketcher.Constraint("DistanceY", -1, 1, 3, 3, Q("6.899999 mm")),
])
pad6 = body6.newObject("PartDesign::Pad", "Pad005")
pad6.Profile = sketch6
pad6.Length = 1

doc.recompute()
